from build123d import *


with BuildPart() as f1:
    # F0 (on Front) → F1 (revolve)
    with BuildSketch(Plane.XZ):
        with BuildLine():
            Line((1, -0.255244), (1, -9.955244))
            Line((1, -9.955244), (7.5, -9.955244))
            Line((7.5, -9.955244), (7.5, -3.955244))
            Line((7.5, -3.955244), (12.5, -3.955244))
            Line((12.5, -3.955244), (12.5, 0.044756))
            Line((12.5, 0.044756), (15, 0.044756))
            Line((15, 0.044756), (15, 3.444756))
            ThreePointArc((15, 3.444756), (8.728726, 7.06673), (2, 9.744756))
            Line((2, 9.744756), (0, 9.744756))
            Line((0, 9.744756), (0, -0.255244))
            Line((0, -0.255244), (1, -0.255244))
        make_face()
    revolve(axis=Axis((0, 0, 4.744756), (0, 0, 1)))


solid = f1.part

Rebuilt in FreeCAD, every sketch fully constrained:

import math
import FreeCAD as App
import Part
import Sketcher
Q = App.Units.Quantity

doc = App.newDocument("Part")
body = doc.addObject("PartDesign::Body", "Body")

sketch1 = body.newObject("Sketcher::SketchObject", "Sketch")
sketch1.AttachmentSupport = (doc.getObject("XZ_Plane"), [""])
sketch1.MapMode = "FlatFace"
sketch1.addGeometry(Part.LineSegment(App.Vector(1, -0.255244, 0), App.Vector(1, -9.955244, 0)), False)
sketch1.addGeometry(Part.LineSegment(App.Vector(1, -9.955244, 0), App.Vector(7.5, -9.955244, 0)), False)
sketch1.addGeometry(Part.LineSegment(App.Vector(7.5, -9.955244, 0), App.Vector(7.5, -3.955244, 0)), False)
sketch1.addGeometry(Part.LineSegment(App.Vector(7.5, -3.955244, 0), App.Vector(12.5, -3.955244, 0)), False)
sketch1.addGeometry(Part.LineSegment(App.Vector(12.5, -3.955244, 0), App.Vector(12.5, 0.044756, 0)), False)
sketch1.addGeometry(Part.LineSegment(App.Vector(12.5, 0.044756, 0), App.Vector(15, 0.044756, 0)), False)
sketch1.addGeometry(Part.LineSegment(App.Vector(15, 0.044756, 0), App.Vector(15, 3.444756, 0)), False)
sketch1.addGeometry(Part.ArcOfCircle(Part.Circle(App.Vector(-13.076448, -37.928073, 0), App.Vector(0, 0, 1), 49.999979), math.radians(55.838382), math.radians(72.450533)), False)
sketch1.addGeometry(Part.LineSegment(App.Vector(2, 9.744756, 0), App.Vector(0, 9.744756, 0)), False)
sketch1.addGeometry(Part.LineSegment(App.Vector(0, 9.744756, 0), App.Vector(0, -0.255244, 0)), False)
sketch1.addGeometry(Part.LineSegment(App.Vector(0, -0.255244, 0), App.Vector(1, -0.255244, 0)), False)
sketch1.addConstraint(Sketcher.Constraint("Coincident", 0, 2, 1, 1))
sketch1.addConstraint(Sketcher.Constraint("Coincident", 1, 2, 2, 1))
sketch1.addConstraint(Sketcher.Constraint("Coincident", 2, 2, 3, 1))
sketch1.addConstraint(Sketcher.Constraint("Coincident", 3, 2, 4, 1))
sketch1.addConstraint(Sketcher.Constraint("Coincident", 4, 2, 5, 1))
sketch1.addConstraint(Sketcher.Constraint("Coincident", 5, 2, 6, 1))
sketch1.addConstraint(Sketcher.Constraint("Coincident", 6, 2, 7, 1))
sketch1.addConstraint(Sketcher.Constraint("Coincident", 7, 2, 8, 1))
sketch1.addConstraint(Sketcher.Constraint("Coincident", 8, 2, 9, 1))
sketch1.addConstraint(Sketcher.Constraint("Coincident", 9, 2, 10, 1))
sketch1.addConstraint(Sketcher.Constraint("Coincident", 10, 2, 0, 1))
sketch1.addConstraint(Sketcher.Constraint("Vertical", 0))
sketch1.addConstraint(Sketcher.Constraint("Horizontal", 1))
sketch1.addConstraint(Sketcher.Constraint("Vertical", 2))
sketch1.addConstraint(Sketcher.Constraint("Horizontal", 3))
sketch1.addConstraint(Sketcher.Constraint("Vertical", 4))
sketch1.addConstraint(Sketcher.Constraint("Horizontal", 5))
sketch1.addConstraint(Sketcher.Constraint("Vertical", 6))
sketch1.addConstraint(Sketcher.Constraint("Horizontal", 8))
sketch1.addConstraint(Sketcher.Constraint("Vertical", 9))
sketch1.addConstraint(Sketcher.Constraint("Horizontal", 10))
sketch1.addConstraint(Sketcher.Constraint("PointOnObject", 8, 2, -2))
sketch1.addConstraint(Sketcher.Constraint("DistanceX", 3, 1, 3, 2, Q("5 mm")))
sketch1.addConstraint(Sketcher.Constraint("DistanceX", 8, 2, 8, 1, Q("2 mm")))
sketch1.addConstraint(Sketcher.Constraint("DistanceX", 10, 1, 10, 2, Q("1 mm")))
sketch1.addConstraint(Sketcher.Constraint("DistanceY", 2, 1, 2, 2, Q("6 mm")))
sketch1.addConstraint(Sketcher.Constraint("DistanceY", 4, 1, 4, 2, Q("4 mm")))
sketch1.addConstraint(Sketcher.Constraint("DistanceY", 9, 2, 9, 1, Q("10 mm")))
sketch1.addConstraint(Sketcher.Constraint("DistanceX", 1, 1, 1, 2, Q("6.5 mm")))
sketch1.addConstraint(Sketcher.Constraint("DistanceX", 5, 1, 5, 2, Q("2.5 mm")))
sketch1.addConstraint(Sketcher.Constraint("DistanceY", 0, 2, 0, 1, Q("9.7 mm")))
sketch1.addConstraint(Sketcher.Constraint("DistanceY", 6, 1, 6, 2, Q("3.4 mm")))
sketch1.addConstraint(Sketcher.Constraint("Radius", 7, Q("49.999979 mm")))
sketch1.addConstraint(Sketcher.Constraint("DistanceY", 7, 3, -1, 1, Q("37.928073 mm")))
revolution = body.newObject("PartDesign::Revolution", "Revolution")
revolution.Profile = sketch1
revolution.ReferenceAxis = (sketch1, ["V_Axis"])
revolution.Angle = 360

doc.recompute()
